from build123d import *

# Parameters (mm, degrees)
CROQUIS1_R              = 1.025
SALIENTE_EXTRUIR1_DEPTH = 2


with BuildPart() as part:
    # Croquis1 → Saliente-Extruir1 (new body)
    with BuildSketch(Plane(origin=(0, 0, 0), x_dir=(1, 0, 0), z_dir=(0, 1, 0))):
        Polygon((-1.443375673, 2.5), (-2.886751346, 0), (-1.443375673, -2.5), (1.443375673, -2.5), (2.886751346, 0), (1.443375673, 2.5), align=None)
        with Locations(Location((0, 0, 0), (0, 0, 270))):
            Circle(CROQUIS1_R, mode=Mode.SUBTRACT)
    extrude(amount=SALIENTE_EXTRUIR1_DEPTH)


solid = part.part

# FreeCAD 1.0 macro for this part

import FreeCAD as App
import Part
import Sketcher
Q = App.Units.Quantity


def add_polygon(sketch, points):
    """Adds a closed chain of lines whose ends are joined by coincident constraints."""
    first, n = sketch.GeometryCount, len(points)
    for a, b in zip(points, points[1:] + points[:1]):
        sketch.addGeometry(Part.LineSegment(App.Vector(*a, 0), App.Vector(*b, 0)), False)
    for i in range(n):
        sketch.addConstraint(Sketcher.Constraint("Coincident", first + i, 2, first + (i + 1) % n, 1))

doc = App.newDocument("Part")
body = doc.addObject("PartDesign::Body", "Body")

# Sketch on XZ plane
sketch1 = doc.addObject("Sketcher::SketchObject", "Sketch")
body.addObject(sketch1)
sketch1.AttachmentSupport = (doc.XZ_Plane, [""])
sketch1.MapMode = "FlatFace"
add_polygon(sketch1, [(-1.443376, -2.5), (-2.886751, 0), (-1.443376, 2.5), (1.443376, 2.5), (2.886751, 0), (1.443376, -2.5)])  # lines 0-5
sketch1.addGeometry(Part.Circle(App.Vector(0, 0, 0), App.Vector(0, 0, 1), 1.025), False)  # 6
sketch1.addConstraint([
    Sketcher.Constraint("Horizontal", 2),
    Sketcher.Constraint("Horizontal", 5),
    Sketcher.Constraint("Coincident", 6, 3, -1, 1),
    Sketcher.Constraint("Symmetric", 0, 2, 3, 2, -1, 1),
    Sketcher.Constraint("Symmetric", 1, 2, 4, 2, -1, 1),
    Sketcher.Constraint("PointOnObject", 0, 2, -1),
    Sketcher.Constraint("Parallel", 0, 3),
    Sketcher.Constraint("Vertical", 2, 2, 4, 2),
    Sketcher.Constraint("Diameter", 6, 2.05),
    Sketcher.Constraint("Angle", 0, Q("120 deg")),
    Sketcher.Constraint("DistanceY", 4, 2, 2, 2, 5.0),
    Sketcher.Constraint("DistanceX", 2, 1, 2, 2, 2.886751),
])
pad1 = doc.addObject("PartDesign::Pad", "Pad")
body.addObject(pad1)
pad1.Profile = sketch1
pad1.Length = 2
pad1.Reversed = True

doc.recompute()
